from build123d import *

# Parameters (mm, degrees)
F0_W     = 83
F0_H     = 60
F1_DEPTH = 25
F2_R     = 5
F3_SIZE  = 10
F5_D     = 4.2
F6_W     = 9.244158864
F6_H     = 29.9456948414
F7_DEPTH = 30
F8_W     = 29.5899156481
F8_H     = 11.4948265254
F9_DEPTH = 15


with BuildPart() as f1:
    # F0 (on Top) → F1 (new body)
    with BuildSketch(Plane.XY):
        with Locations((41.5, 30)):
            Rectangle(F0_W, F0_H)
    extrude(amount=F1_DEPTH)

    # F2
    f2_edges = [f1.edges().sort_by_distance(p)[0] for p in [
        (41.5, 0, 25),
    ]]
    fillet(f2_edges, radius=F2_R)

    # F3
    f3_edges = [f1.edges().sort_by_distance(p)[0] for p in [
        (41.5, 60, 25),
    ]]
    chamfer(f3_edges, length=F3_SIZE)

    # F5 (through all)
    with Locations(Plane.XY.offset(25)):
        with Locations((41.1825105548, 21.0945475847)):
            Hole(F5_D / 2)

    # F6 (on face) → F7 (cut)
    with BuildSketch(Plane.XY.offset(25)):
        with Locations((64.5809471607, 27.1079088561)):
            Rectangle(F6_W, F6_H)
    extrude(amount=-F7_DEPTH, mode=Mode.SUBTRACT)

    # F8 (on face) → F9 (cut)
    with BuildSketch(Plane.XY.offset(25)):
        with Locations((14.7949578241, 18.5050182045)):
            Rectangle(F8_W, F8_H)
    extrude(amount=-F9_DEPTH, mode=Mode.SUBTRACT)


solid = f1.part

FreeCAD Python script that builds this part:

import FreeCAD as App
import Part
import Sketcher
from FreeCAD import Vector
Q = App.Units.Quantity


def edges_at(feature, points):
    """Names of the edges that pass closest to the given points."""
    edges = feature.Shape.Edges
    near = lambda p: min(range(len(edges)), key=lambda i: edges[i].distToShape(Part.Vertex(*p))[0])
    return sorted({f"Edge{near(p) + 1}" for p in points})


def add_polygon(sketch, points):
    """Adds a closed chain of lines whose ends are joined by coincident constraints."""
    first, n = sketch.GeometryCount, len(points)
    for a, b in zip(points, points[1:] + points[:1]):
        sketch.addGeometry(Part.LineSegment(App.Vector(*a, 0), App.Vector(*b, 0)), False)
    for i in range(n):
        sketch.addConstraint(Sketcher.Constraint("Coincident", first + i, 2, first + (i + 1) % n, 1))

doc = App.newDocument("Part")
body = doc.addObject("PartDesign::Body", "Body")

# Sketch on XY plane
sketch1 = body.newObject("Sketcher::SketchObject", "Sketch")
sketch1.AttachmentSupport = (doc.getObject("XY_Plane"), [""])
sketch1.MapMode = "FlatFace"
add_polygon(sketch1, [(0, 60), (0, 0), (83, 0), (83, 60)])  # lines 0-3
sketch1.addConstraint([
    Sketcher.Constraint("Vertical", 0),
    Sketcher.Constraint("Horizontal", 1),
    Sketcher.Constraint("Vertical", 2),
    Sketcher.Constraint("Horizontal", 3),
    Sketcher.Constraint("Coincident", 0, 2, -1, 1),
    Sketcher.Constraint("DistanceX", 1, 1, 1, 2, Q("83 mm")),
    Sketcher.Constraint("DistanceY", 0, 2, 0, 1, Q("60 mm")),
])
pad1 = body.newObject("PartDesign::Pad", "Pad")
pad1.Profile = sketch1
pad1.Length = 25
doc.recompute()

fillet = body.newObject("PartDesign::Fillet", "Fillet")
fillet.Base = (pad1, edges_at(pad1, [(41.5, 0, 25)]))
fillet.Radius = 5
doc.recompute()

chamfer = body.newObject("PartDesign::Chamfer", "Chamfer")
chamfer.Base = (fillet, edges_at(fillet, [(41.5, 60, 25)]))
chamfer.Size = 10

# Sketch on XY plane
sketch2 = body.newObject("Sketcher::SketchObject", "Sketch001")
sketch2.AttachmentSupport = (doc.getObject("XY_Plane"), [""])
sketch2.MapMode = "FlatFace"
sketch2.AttachmentOffset = App.Placement(Vector(0, 0, 25), App.Rotation())
sketch2.addGeometry(Part.Circle(Vector(41.182511, 21.094548, 0), Vector(0, 0, 1), 2.1), False)
sketch2.addConstraint([
    Sketcher.Constraint("Diameter", 0, Q("4.2 mm")),
    Sketcher.Constraint("DistanceX", -1, 1, 0, 3, Q("41.182511 mm")),
    Sketcher.Constraint("DistanceY", -1, 1, 0, 3, Q("21.094548 mm")),
])
doc.recompute()
hole = body.newObject("PartDesign::Hole", "Hole")
hole.Profile = sketch2
hole.ThreadType = "None"
hole.Diameter = 4.2
hole.DepthType = "ThroughAll"

# Sketch on XY plane
sketch3 = body.newObject("Sketcher::SketchObject", "Sketch002")
sketch3.AttachmentSupport = (doc.getObject("XY_Plane"), [""])
sketch3.MapMode = "FlatFace"
sketch3.AttachmentOffset = App.Placement(Vector(0, 0, 25), App.Rotation())
add_polygon(sketch3, [(59.958868, 42.080756), (59.958868, 12.135061), (69.203027, 12.135061), (69.203027, 42.080756)])  # lines 0-3
sketch3.addConstraint([
    Sketcher.Constraint("Vertical", 0),
    Sketcher.Constraint("Horizontal", 1),
    Sketcher.Constraint("Vertical", 2),
    Sketcher.Constraint("Horizontal", 3),
    Sketcher.Constraint("DistanceX", 1, 1, 1, 2, Q("9.244159 mm")),
    Sketcher.Constraint("DistanceY", 0, 2, 0, 1, Q("29.945695 mm")),
    Sketcher.Constraint("DistanceY", -1, 1, 0, 2, Q("12.135061 mm")),
    Sketcher.Constraint("DistanceX", -1, 1, 0, 2, Q("59.958868 mm")),
])
pocket1 = body.newObject("PartDesign::Pocket", "Pocket")
pocket1.Profile = sketch3
pocket1.Length = 30

# Sketch on XY plane
sketch4 = body.newObject("Sketcher::SketchObject", "Sketch003")
sketch4.AttachmentSupport = (doc.getObject("XY_Plane"), [""])
sketch4.MapMode = "FlatFace"
sketch4.AttachmentOffset = App.Placement(Vector(0, 0, 25), App.Rotation())
add_polygon(sketch4, [(0, 24.252431), (0, 12.757605), (29.589916, 12.757605), (29.589916, 24.252431)])  # lines 0-3
sketch4.addConstraint([
    Sketcher.Constraint("Vertical", 0),
    Sketcher.Constraint("Horizontal", 1),
    Sketcher.Constraint("Vertical", 2),
    Sketcher.Constraint("Horizontal", 3),
    Sketcher.Constraint("PointOnObject", 0, 2, -2),
    Sketcher.Constraint("DistanceX", 1, 1, 1, 2, Q("29.589916 mm")),
    Sketcher.Constraint("DistanceY", 0, 2, 0, 1, Q("11.494827 mm")),
    Sketcher.Constraint("DistanceY", -1, 1, 2, 2, Q("24.252431 mm")),
])
pocket2 = body.newObject("PartDesign::Pocket", "Pocket001")
pocket2.Profile = sketch4
pocket2.Length = 15

doc.recompute()
